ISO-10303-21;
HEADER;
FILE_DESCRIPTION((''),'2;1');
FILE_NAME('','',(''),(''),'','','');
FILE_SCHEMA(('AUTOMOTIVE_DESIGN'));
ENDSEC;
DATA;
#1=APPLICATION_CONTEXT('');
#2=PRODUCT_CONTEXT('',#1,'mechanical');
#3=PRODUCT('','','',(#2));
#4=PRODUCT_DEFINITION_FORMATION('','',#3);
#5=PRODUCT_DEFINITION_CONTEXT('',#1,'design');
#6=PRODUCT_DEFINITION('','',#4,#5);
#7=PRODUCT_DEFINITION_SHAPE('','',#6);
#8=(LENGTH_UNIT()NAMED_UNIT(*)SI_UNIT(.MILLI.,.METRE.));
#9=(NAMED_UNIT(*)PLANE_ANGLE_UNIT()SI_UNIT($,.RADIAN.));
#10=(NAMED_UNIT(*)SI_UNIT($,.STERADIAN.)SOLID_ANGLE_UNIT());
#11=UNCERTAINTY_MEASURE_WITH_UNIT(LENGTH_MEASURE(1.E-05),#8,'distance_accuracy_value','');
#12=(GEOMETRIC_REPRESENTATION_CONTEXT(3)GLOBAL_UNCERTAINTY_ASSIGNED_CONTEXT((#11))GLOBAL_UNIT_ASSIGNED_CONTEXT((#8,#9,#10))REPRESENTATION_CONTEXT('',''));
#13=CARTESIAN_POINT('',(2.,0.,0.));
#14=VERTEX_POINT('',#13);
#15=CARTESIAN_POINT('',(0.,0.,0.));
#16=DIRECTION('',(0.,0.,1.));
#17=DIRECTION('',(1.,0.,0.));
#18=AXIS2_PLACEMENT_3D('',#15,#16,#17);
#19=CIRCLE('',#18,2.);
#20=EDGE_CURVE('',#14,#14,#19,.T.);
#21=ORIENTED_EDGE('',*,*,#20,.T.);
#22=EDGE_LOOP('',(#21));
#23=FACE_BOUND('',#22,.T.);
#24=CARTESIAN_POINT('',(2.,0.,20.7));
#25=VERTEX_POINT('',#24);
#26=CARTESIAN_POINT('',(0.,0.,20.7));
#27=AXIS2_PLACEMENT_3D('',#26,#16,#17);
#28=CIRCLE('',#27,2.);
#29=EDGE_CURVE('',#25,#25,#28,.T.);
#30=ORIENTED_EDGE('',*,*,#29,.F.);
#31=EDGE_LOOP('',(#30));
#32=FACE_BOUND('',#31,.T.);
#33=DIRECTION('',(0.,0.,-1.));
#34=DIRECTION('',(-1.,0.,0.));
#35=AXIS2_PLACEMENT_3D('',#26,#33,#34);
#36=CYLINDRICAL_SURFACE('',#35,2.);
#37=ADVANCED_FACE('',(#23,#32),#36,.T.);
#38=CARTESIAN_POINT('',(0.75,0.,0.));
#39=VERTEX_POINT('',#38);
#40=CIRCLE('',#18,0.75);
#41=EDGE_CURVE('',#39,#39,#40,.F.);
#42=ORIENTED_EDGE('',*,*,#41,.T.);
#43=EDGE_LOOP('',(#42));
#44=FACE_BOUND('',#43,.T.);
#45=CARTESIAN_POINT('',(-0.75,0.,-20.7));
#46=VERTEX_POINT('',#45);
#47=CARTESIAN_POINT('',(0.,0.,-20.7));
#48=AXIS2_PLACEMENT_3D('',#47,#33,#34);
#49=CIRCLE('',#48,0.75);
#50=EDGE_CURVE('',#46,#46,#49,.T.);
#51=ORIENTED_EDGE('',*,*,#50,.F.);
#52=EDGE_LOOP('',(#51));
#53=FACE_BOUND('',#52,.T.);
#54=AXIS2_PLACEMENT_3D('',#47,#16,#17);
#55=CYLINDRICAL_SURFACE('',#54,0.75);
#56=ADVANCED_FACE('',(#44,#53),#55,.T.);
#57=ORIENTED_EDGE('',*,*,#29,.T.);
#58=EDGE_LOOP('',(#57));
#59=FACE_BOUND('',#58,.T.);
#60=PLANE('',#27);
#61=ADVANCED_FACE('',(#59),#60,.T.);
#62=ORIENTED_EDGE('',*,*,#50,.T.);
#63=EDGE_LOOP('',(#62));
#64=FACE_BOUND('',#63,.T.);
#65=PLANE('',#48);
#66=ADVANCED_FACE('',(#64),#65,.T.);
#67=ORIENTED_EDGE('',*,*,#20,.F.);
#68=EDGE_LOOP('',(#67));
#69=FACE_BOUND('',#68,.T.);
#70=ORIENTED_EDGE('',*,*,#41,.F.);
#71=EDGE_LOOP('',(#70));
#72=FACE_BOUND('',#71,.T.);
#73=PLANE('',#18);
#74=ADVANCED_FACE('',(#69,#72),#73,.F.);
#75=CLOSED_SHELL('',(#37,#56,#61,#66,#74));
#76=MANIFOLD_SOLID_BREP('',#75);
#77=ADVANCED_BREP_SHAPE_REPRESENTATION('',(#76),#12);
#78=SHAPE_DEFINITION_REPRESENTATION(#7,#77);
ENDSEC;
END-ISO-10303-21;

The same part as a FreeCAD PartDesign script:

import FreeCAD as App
import Part
import Sketcher
from FreeCAD import Vector
Q = App.Units.Quantity

doc = App.newDocument("Part")
params = doc.addObject("Spreadsheet::Sheet", "Params")
for row, (alias, value) in enumerate([
    ("sketch1_diameter", "4 mm"),
    ("pad1_length", "20.7 mm"),
    ("sketch2_diameter", "1.5 mm"),
    ("pad2_length", "20.7 mm"),
], start=1):
    params.set(f"A{row}", alias)
    params.set(f"B{row}", "=" + value)
    params.setAlias(f"B{row}", alias)

body = doc.addObject("PartDesign::Body", "Body")

# Sketch on XY plane
sketch1 = body.newObject("Sketcher::SketchObject", "Sketch")
sketch1.AttachmentSupport = (doc.getObject("XY_Plane"), [""])
sketch1.MapMode = "FlatFace"
sketch1.addGeometry(Part.Circle(Vector(0, 0, 0), Vector(0, 0, 1), 2), False)
sketch1.addConstraint(Sketcher.Constraint("Coincident", 0, 3, -1, 1))
sketch1.addConstraint(Sketcher.Constraint("Diameter", 0, Q("4 mm")))
sketch1.setExpression("Constraints[1]", "Params.sketch1_diameter")
pad1 = body.newObject("PartDesign::Pad", "Pad")
pad1.Profile = sketch1
pad1.setExpression("Length", "Params.pad1_length")

# Sketch on XY plane
sketch2 = body.newObject("Sketcher::SketchObject", "Sketch001")
sketch2.AttachmentSupport = (doc.getObject("XY_Plane"), [""])
sketch2.MapMode = "FlatFace"
sketch2.addGeometry(Part.Circle(Vector(0, 0, 0), Vector(0, 0, 1), 0.75), False)
sketch2.addConstraint(Sketcher.Constraint("Coincident", 0, 3, -1, 1))
sketch2.addConstraint(Sketcher.Constraint("Diameter", 0, Q("1.5 mm")))
sketch2.setExpression("Constraints[1]", "Params.sketch2_diameter")
pad2 = body.newObject("PartDesign::Pad", "Pad001")
pad2.Profile = sketch2
pad2.setExpression("Length", "Params.pad2_length")
pad2.Reversed = True

doc.recompute()
